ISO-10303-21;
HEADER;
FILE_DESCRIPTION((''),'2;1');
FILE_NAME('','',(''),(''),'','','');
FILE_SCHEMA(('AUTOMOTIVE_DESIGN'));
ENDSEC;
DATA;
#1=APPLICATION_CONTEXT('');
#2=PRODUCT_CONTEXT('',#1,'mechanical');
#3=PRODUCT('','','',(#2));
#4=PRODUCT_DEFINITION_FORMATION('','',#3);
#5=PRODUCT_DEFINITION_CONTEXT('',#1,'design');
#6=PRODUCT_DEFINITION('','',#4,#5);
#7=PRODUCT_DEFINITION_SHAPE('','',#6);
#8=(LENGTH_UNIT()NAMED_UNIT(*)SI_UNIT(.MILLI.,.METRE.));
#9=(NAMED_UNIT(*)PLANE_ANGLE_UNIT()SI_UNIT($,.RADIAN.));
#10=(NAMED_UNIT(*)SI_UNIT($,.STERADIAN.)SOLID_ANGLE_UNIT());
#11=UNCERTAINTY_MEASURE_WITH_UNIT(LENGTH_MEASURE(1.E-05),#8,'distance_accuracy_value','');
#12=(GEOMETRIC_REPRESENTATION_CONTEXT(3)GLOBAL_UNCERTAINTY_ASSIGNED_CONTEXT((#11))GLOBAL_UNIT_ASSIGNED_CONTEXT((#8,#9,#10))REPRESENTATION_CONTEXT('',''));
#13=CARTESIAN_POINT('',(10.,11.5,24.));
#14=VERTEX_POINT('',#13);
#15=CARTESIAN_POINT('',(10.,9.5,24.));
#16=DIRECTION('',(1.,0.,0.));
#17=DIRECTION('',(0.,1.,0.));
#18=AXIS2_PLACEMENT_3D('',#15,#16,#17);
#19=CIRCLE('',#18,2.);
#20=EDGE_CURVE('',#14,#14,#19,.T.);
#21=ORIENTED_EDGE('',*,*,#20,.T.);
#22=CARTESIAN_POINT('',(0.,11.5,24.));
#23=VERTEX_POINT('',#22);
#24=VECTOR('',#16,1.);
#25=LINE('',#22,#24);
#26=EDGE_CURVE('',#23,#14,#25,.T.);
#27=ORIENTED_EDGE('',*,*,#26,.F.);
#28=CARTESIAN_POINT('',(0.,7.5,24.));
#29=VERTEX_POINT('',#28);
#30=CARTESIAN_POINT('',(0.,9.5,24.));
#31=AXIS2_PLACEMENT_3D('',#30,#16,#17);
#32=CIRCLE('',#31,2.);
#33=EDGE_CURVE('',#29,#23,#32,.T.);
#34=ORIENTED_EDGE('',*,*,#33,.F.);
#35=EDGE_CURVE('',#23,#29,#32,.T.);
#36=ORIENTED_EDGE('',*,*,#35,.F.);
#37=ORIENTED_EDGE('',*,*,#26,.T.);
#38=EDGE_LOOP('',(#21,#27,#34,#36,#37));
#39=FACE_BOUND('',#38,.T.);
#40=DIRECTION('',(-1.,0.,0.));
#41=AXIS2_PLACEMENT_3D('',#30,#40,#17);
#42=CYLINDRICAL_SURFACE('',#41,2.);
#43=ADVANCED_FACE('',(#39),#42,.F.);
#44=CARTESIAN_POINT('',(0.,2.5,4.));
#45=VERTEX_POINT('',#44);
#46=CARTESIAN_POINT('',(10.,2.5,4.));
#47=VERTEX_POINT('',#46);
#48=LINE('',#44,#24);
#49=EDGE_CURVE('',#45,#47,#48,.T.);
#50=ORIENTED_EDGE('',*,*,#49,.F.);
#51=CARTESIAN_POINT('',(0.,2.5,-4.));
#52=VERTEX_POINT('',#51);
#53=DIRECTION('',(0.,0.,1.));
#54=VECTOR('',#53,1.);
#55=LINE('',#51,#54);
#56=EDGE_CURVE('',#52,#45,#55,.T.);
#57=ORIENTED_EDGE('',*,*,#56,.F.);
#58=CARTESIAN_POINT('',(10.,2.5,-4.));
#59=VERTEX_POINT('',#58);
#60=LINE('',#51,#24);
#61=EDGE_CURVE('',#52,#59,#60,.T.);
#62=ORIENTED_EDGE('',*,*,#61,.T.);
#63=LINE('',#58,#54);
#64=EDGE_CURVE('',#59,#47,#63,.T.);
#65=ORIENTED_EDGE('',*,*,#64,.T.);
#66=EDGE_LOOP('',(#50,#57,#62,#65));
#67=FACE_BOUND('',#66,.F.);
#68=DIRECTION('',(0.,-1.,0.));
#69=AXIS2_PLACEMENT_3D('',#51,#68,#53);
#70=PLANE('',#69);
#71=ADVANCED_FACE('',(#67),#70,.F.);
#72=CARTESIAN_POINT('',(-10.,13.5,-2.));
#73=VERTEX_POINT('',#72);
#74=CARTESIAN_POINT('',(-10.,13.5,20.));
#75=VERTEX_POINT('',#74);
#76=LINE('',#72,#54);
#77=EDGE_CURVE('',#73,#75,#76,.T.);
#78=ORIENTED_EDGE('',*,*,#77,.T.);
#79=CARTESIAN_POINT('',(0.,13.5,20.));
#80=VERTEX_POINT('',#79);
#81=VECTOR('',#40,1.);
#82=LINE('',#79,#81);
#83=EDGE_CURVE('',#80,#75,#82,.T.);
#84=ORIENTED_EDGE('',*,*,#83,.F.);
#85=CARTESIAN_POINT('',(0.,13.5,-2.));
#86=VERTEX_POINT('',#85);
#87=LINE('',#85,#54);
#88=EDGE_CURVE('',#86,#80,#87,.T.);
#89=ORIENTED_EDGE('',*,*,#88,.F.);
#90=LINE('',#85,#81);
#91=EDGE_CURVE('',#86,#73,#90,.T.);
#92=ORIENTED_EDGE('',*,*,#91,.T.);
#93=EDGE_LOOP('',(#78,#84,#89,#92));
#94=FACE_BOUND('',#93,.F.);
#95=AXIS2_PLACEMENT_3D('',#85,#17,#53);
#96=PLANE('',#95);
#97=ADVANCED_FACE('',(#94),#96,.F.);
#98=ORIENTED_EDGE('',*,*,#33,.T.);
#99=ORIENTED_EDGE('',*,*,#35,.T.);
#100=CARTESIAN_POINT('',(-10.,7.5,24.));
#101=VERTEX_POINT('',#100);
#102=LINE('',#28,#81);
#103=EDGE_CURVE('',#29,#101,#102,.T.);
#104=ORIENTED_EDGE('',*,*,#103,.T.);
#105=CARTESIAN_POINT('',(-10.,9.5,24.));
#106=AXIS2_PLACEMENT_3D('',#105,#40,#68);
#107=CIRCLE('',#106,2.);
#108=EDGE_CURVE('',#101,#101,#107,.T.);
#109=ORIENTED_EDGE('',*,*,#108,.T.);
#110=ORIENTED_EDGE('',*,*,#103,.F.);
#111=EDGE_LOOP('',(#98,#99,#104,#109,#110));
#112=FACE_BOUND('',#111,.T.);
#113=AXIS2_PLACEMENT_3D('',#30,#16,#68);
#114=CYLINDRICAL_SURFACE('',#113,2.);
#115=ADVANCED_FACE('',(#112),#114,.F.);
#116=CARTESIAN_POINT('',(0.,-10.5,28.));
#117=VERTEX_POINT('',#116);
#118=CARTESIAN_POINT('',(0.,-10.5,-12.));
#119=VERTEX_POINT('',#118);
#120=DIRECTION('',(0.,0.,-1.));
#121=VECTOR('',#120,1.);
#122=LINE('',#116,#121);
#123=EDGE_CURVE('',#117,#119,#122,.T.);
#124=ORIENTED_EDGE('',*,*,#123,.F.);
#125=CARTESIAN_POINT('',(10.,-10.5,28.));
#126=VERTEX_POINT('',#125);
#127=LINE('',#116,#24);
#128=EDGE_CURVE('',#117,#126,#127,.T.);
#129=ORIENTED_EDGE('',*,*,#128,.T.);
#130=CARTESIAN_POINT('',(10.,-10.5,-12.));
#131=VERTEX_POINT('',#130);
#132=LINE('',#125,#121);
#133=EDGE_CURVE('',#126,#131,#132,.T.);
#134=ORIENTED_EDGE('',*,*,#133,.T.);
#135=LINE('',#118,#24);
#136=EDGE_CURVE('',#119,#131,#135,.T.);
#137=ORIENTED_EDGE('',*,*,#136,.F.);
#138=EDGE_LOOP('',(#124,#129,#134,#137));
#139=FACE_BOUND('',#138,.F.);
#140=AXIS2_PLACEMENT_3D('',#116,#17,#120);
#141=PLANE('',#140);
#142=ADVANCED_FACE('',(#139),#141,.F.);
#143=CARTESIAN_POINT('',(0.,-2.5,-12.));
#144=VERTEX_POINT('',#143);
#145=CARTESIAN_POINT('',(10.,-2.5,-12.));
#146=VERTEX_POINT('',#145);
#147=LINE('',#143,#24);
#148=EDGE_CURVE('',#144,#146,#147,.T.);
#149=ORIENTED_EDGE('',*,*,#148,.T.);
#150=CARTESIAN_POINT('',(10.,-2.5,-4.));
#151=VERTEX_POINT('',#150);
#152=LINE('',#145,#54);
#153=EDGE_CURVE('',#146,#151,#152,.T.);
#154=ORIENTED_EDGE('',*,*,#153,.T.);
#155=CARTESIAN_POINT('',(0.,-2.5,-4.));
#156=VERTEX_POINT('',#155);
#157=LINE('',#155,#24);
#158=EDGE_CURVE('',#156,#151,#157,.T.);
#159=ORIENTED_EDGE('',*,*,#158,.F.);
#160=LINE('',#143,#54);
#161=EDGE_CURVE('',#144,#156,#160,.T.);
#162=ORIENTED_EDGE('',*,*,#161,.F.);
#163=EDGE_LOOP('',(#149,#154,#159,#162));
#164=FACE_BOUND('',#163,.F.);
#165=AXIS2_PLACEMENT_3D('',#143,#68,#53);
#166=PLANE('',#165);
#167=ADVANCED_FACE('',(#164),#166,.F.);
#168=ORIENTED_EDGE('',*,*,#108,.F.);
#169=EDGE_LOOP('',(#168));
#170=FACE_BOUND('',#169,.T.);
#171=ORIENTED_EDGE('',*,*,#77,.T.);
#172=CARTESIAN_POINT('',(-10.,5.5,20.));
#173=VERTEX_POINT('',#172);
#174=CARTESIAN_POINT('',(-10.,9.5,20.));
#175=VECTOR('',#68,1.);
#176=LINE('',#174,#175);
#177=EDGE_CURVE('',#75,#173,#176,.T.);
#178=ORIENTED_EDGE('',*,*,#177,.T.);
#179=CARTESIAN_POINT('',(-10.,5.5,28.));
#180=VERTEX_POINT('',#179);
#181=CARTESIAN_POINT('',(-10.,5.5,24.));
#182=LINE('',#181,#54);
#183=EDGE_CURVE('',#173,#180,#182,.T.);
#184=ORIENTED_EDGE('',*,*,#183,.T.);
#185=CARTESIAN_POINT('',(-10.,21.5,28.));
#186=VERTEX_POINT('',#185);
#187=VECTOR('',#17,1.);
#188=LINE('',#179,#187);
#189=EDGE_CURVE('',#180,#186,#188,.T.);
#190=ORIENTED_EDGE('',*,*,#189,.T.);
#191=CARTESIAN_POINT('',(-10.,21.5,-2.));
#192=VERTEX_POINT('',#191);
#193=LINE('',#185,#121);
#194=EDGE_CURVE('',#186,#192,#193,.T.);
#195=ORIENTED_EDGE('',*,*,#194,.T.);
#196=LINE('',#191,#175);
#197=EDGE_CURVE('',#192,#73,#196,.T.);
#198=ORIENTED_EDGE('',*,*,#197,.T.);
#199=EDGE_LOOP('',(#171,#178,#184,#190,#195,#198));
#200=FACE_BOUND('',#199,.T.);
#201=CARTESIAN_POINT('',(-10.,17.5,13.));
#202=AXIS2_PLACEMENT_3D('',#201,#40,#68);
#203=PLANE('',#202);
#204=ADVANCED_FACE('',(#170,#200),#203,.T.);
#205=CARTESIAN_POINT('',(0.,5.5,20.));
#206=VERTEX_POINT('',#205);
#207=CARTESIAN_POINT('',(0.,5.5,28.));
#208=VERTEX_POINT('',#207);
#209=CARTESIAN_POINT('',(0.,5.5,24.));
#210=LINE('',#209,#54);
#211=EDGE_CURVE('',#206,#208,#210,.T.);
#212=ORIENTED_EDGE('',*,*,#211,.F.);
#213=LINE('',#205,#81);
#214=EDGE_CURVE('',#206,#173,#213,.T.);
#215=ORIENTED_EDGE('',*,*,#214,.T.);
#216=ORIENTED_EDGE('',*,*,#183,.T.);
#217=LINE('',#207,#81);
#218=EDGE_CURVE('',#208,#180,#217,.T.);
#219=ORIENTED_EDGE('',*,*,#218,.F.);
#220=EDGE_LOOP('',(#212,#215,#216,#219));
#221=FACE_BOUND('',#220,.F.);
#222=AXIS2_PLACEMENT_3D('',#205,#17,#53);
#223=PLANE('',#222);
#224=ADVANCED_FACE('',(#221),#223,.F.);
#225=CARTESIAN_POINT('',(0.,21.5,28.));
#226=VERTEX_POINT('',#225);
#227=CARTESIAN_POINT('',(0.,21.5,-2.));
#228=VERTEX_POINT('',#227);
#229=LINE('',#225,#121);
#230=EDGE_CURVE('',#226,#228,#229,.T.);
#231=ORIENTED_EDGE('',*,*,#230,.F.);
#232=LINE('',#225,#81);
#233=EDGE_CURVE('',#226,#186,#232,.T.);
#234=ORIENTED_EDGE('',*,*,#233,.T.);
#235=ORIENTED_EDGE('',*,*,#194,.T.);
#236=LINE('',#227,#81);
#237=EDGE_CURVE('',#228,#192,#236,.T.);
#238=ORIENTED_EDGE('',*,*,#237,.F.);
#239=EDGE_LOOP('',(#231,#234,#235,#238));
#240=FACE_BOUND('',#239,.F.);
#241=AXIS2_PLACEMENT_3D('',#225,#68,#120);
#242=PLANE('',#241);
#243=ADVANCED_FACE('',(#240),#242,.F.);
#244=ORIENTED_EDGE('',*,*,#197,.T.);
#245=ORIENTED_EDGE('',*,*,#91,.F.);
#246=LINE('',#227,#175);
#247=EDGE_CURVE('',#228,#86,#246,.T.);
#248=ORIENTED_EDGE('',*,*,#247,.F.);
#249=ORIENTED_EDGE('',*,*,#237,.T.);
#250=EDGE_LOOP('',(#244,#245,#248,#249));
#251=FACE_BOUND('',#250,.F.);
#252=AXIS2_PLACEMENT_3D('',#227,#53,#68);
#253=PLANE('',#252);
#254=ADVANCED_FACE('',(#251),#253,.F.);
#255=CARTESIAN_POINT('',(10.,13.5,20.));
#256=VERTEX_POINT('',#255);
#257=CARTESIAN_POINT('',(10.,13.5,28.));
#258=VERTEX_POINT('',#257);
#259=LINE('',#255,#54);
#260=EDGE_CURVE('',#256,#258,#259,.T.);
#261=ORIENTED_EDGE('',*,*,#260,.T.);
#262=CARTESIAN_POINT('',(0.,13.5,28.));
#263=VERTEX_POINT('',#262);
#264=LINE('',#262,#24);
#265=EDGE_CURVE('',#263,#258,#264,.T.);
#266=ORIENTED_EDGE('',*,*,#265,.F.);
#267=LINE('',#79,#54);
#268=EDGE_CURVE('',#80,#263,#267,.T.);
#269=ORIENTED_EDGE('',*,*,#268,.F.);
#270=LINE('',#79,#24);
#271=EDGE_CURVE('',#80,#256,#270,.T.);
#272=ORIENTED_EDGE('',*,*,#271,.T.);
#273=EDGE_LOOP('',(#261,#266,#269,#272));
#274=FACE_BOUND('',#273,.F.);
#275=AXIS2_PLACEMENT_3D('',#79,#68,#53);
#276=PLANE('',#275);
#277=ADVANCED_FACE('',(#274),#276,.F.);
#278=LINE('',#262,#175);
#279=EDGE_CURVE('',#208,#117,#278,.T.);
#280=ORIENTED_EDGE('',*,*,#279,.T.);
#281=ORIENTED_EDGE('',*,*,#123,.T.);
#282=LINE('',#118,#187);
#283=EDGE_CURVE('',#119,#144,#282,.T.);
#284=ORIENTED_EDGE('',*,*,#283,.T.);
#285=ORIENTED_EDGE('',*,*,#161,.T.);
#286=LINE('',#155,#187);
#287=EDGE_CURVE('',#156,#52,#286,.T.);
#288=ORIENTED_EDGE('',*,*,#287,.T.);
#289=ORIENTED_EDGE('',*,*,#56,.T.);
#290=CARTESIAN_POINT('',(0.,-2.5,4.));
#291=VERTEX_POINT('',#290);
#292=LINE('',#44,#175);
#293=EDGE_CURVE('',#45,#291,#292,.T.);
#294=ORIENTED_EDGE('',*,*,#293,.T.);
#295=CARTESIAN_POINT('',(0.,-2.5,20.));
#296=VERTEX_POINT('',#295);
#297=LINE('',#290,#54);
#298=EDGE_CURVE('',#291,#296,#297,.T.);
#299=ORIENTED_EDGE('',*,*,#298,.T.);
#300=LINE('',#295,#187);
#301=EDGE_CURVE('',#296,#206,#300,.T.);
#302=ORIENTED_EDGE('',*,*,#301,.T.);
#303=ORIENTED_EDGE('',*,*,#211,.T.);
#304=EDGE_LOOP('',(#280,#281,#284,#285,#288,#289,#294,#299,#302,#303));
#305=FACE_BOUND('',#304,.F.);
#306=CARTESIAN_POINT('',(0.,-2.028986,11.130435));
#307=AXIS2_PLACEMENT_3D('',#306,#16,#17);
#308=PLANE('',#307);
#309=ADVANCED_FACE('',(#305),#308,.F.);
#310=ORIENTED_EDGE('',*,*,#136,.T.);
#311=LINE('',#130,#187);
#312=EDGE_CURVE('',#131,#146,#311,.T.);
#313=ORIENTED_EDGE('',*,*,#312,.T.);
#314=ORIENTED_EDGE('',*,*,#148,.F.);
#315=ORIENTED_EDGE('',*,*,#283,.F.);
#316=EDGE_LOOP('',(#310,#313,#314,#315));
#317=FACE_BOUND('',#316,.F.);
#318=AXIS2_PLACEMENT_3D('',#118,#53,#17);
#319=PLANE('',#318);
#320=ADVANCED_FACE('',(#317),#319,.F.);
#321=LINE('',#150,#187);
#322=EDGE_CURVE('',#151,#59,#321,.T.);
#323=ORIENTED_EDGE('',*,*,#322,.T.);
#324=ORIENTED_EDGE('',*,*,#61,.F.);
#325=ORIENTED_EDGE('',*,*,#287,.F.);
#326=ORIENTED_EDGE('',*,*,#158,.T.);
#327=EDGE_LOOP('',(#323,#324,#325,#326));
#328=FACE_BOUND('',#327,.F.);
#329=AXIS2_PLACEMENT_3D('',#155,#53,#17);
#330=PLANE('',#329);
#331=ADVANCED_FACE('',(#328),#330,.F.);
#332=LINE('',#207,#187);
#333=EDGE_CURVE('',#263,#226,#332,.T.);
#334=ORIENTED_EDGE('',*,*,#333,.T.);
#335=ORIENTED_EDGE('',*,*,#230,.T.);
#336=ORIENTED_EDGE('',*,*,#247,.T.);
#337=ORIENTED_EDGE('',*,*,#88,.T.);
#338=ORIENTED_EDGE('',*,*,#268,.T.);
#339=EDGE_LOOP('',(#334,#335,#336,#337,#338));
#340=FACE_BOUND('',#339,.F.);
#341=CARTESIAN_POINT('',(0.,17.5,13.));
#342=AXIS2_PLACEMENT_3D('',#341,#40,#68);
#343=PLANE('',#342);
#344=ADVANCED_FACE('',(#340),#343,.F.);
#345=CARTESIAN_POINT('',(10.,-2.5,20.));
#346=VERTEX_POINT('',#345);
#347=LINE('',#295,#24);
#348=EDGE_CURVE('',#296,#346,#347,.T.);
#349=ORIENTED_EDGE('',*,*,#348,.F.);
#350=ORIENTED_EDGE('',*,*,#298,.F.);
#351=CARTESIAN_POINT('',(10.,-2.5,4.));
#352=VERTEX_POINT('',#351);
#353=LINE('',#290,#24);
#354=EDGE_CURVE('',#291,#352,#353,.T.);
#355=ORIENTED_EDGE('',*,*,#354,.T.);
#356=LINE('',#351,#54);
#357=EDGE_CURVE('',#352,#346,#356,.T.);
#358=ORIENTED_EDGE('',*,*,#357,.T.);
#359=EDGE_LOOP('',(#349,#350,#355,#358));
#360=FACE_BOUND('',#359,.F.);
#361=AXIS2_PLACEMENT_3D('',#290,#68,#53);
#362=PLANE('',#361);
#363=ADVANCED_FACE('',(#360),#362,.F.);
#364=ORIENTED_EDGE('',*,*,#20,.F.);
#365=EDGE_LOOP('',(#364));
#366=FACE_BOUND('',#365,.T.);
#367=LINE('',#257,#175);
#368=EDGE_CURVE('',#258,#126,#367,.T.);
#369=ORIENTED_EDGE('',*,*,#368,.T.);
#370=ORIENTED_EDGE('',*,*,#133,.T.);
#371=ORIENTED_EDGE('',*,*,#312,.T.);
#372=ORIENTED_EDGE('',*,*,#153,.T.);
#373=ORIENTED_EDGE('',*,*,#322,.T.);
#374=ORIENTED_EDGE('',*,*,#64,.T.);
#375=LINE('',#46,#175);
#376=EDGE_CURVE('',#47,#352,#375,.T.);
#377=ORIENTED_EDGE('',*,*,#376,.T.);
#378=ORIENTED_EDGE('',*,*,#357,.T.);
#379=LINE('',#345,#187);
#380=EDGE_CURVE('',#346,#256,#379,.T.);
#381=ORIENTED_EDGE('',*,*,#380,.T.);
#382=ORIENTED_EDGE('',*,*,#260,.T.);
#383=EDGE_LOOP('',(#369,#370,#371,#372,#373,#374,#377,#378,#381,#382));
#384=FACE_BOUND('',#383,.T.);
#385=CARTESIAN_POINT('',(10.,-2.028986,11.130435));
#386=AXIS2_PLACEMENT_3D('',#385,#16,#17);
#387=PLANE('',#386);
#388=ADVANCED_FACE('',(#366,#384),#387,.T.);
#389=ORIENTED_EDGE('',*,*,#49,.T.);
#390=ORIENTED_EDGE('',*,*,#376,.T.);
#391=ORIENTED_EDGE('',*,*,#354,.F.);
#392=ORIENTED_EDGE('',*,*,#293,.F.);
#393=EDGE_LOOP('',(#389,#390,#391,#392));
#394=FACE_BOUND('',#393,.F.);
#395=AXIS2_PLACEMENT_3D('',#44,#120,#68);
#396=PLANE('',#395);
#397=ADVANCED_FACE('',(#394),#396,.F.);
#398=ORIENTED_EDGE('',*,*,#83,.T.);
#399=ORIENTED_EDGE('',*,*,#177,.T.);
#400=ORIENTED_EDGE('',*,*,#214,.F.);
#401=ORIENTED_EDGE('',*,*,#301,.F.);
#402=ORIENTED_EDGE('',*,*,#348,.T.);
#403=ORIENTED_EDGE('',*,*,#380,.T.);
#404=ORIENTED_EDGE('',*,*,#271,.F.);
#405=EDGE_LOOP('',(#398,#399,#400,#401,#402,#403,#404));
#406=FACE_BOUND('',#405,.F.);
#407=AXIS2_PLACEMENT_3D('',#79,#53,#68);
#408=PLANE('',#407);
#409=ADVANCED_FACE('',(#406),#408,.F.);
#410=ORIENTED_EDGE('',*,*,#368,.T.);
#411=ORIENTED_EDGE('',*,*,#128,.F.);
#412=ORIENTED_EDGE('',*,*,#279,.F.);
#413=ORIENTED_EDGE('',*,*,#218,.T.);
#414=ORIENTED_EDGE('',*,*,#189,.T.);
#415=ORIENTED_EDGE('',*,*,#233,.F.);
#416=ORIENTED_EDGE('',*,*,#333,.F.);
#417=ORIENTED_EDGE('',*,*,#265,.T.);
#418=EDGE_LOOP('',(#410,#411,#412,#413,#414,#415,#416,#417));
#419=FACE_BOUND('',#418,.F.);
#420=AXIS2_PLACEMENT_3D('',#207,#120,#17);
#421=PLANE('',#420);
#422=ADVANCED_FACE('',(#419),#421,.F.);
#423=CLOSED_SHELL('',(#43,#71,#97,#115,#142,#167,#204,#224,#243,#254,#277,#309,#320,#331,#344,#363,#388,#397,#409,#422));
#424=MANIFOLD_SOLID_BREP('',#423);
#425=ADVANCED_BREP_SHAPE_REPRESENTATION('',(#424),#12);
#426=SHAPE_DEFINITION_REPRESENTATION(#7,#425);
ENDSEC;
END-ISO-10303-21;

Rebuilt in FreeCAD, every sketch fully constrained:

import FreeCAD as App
import Part
import Sketcher
from FreeCAD import Vector

doc = App.newDocument("Part")
body = doc.addObject("PartDesign::Body", "Body")

# Sketch on YZ plane
sketch1 = doc.addObject("Sketcher::SketchObject", "Sketch")
body.addObject(sketch1)
sketch1.AttachmentSupport = (doc.YZ_Plane, [""])
sketch1.MapMode = "FlatFace"
sketch1.addGeometry(Part.LineSegment(Vector(2.5, -4, 0), Vector(2.5, 4, 0)), False)
sketch1.addGeometry(Part.LineSegment(Vector(2.5, 4, 0), Vector(-2.5, 4, 0)), False)
sketch1.addGeometry(Part.LineSegment(Vector(-2.5, 4, 0), Vector(-2.5, 20, 0)), False)
sketch1.addGeometry(Part.LineSegment(Vector(-2.5, 20, 0), Vector(13.5, 20, 0)), False)
sketch1.addGeometry(Part.LineSegment(Vector(13.5, 20, 0), Vector(13.5, 28, 0)), False)
sketch1.addGeometry(Part.LineSegment(Vector(13.5, 28, 0), Vector(-10.5, 28, 0)), False)
sketch1.addGeometry(Part.LineSegment(Vector(-10.5, 28, 0), Vector(-10.5, -12, 0)), False)
sketch1.addGeometry(Part.LineSegment(Vector(-10.5, -12, 0), Vector(-2.5, -12, 0)), False)
sketch1.addGeometry(Part.LineSegment(Vector(-2.5, -12, 0), Vector(-2.5, -4, 0)), False)
sketch1.addGeometry(Part.LineSegment(Vector(-2.5, -4, 0), Vector(2.5, -4, 0)), False)
sketch1.addGeometry(Part.Circle(Vector(9.5, 24, 0), Vector(0, 0, 1), 2), False)
sketch1.addConstraint(Sketcher.Constraint("Coincident", 0, 2, 1, 1))
sketch1.addConstraint(Sketcher.Constraint("Coincident", 1, 2, 2, 1))
sketch1.addConstraint(Sketcher.Constraint("Coincident", 2, 2, 3, 1))
sketch1.addConstraint(Sketcher.Constraint("Coincident", 3, 2, 4, 1))
sketch1.addConstraint(Sketcher.Constraint("Coincident", 4, 2, 5, 1))
sketch1.addConstraint(Sketcher.Constraint("Coincident", 5, 2, 6, 1))
sketch1.addConstraint(Sketcher.Constraint("Coincident", 6, 2, 7, 1))
sketch1.addConstraint(Sketcher.Constraint("Coincident", 7, 2, 8, 1))
sketch1.addConstraint(Sketcher.Constraint("Coincident", 8, 2, 9, 1))
sketch1.addConstraint(Sketcher.Constraint("Coincident", 9, 2, 0, 1))
sketch1.addConstraint(Sketcher.Constraint("Vertical", 0))
sketch1.addConstraint(Sketcher.Constraint("Horizontal", 1))
sketch1.addConstraint(Sketcher.Constraint("Vertical", 2))
sketch1.addConstraint(Sketcher.Constraint("Horizontal", 3))
sketch1.addConstraint(Sketcher.Constraint("Vertical", 4))
sketch1.addConstraint(Sketcher.Constraint("Horizontal", 5))
sketch1.addConstraint(Sketcher.Constraint("Vertical", 6))
sketch1.addConstraint(Sketcher.Constraint("Horizontal", 7))
sketch1.addConstraint(Sketcher.Constraint("Vertical", 8))
sketch1.addConstraint(Sketcher.Constraint("Horizontal", 9))
sketch1.addConstraint(Sketcher.Constraint("Symmetric", 0, 2, 8, 2, -1, 1))
sketch1.addConstraint(Sketcher.Constraint("Vertical", 2, 2, 7, 2))
sketch1.addConstraint(Sketcher.Constraint("Equal", 7, 0))
sketch1.addConstraint(Sketcher.Constraint("Equal", 3, 2))
sketch1.addConstraint(Sketcher.Constraint("Equal", 0, 4))
sketch1.addConstraint(Sketcher.Constraint("Equal", 4, 8))
sketch1.addConstraint(Sketcher.Constraint("Diameter", 10, 4.0))
sketch1.addConstraint(Sketcher.Constraint("DistanceX", 1, 2, 1, 1, 5.0))
sketch1.addConstraint(Sketcher.Constraint("DistanceX", 3, 1, 3, 2, 16.0))
sketch1.addConstraint(Sketcher.Constraint("DistanceX", 5, 2, 5, 1, 24.0))
sketch1.addConstraint(Sketcher.Constraint("DistanceY", -1, 1, 10, 3, 24.0))
sketch1.addConstraint(Sketcher.Constraint("DistanceX", 0, 2, 10, 3, 7.0))
pad1 = doc.addObject("PartDesign::Pad", "Pad")
body.addObject(pad1)
pad1.Profile = sketch1
pad1.Length = 10

# Sketch on YZ plane
sketch2 = doc.addObject("Sketcher::SketchObject", "Sketch001")
body.addObject(sketch2)
sketch2.AttachmentSupport = (doc.YZ_Plane, [""])
sketch2.MapMode = "FlatFace"
sketch2.addGeometry(Part.LineSegment(Vector(13.5, -2, 0), Vector(13.5, 20, 0)), False)
sketch2.addGeometry(Part.LineSegment(Vector(13.5, 20, 0), Vector(5.5, 20, 0)), False)
sketch2.addGeometry(Part.LineSegment(Vector(5.5, 20, 0), Vector(5.5, 28, 0)), False)
sketch2.addGeometry(Part.LineSegment(Vector(5.5, 28, 0), Vector(21.5, 28, 0)), False)
sketch2.addGeometry(Part.LineSegment(Vector(21.5, 28, 0), Vector(21.5, -2, 0)), False)
sketch2.addGeometry(Part.LineSegment(Vector(21.5, -2, 0), Vector(13.5, -2, 0)), False)
sketch2.addGeometry(Part.Circle(Vector(9.5, 24, 0), Vector(0, 0, 1), 2), False)
sketch2.addConstraint(Sketcher.Constraint("Coincident", 0, 2, 1, 1))
sketch2.addConstraint(Sketcher.Constraint("Coincident", 1, 2, 2, 1))
sketch2.addConstraint(Sketcher.Constraint("Coincident", 2, 2, 3, 1))
sketch2.addConstraint(Sketcher.Constraint("Coincident", 3, 2, 4, 1))
sketch2.addConstraint(Sketcher.Constraint("Coincident", 4, 2, 5, 1))
sketch2.addConstraint(Sketcher.Constraint("Coincident", 5, 2, 0, 1))
sketch2.addConstraint(Sketcher.Constraint("Vertical", 0))
sketch2.addConstraint(Sketcher.Constraint("Horizontal", 1))
sketch2.addConstraint(Sketcher.Constraint("Vertical", 2))
sketch2.addConstraint(Sketcher.Constraint("Horizontal", 3))
sketch2.addConstraint(Sketcher.Constraint("Vertical", 4))
sketch2.addConstraint(Sketcher.Constraint("Horizontal", 5))
sketch2.addConstraint(Sketcher.Constraint("Equal", 1, 5))
sketch2.addConstraint(Sketcher.Constraint("Equal", 5, 2))
sketch2.addConstraint(Sketcher.Constraint("Diameter", 6, 4.0))
sketch2.addConstraint(Sketcher.Constraint("DistanceX", 1, 2, 1, 1, 8.0))
sketch2.addConstraint(Sketcher.Constraint("DistanceY", 0, 1, 0, 2, 22.0))
sketch2.addConstraint(Sketcher.Constraint("DistanceY", -1, 1, 6, 3, 24.0))
sketch2.addConstraint(Sketcher.Constraint("DistanceY", -1, 1, 0, 2, 20.0))
sketch2.addConstraint(Sketcher.Constraint("DistanceX", 6, 3, 0, 2, 4.0))
sketch2.addConstraint(Sketcher.Constraint("DistanceX", -1, 1, 6, 3, 9.5))
pad2 = doc.addObject("PartDesign::Pad", "Pad001")
body.addObject(pad2)
pad2.Profile = sketch2
pad2.Length = 10
pad2.Reversed = True

doc.recompute()
